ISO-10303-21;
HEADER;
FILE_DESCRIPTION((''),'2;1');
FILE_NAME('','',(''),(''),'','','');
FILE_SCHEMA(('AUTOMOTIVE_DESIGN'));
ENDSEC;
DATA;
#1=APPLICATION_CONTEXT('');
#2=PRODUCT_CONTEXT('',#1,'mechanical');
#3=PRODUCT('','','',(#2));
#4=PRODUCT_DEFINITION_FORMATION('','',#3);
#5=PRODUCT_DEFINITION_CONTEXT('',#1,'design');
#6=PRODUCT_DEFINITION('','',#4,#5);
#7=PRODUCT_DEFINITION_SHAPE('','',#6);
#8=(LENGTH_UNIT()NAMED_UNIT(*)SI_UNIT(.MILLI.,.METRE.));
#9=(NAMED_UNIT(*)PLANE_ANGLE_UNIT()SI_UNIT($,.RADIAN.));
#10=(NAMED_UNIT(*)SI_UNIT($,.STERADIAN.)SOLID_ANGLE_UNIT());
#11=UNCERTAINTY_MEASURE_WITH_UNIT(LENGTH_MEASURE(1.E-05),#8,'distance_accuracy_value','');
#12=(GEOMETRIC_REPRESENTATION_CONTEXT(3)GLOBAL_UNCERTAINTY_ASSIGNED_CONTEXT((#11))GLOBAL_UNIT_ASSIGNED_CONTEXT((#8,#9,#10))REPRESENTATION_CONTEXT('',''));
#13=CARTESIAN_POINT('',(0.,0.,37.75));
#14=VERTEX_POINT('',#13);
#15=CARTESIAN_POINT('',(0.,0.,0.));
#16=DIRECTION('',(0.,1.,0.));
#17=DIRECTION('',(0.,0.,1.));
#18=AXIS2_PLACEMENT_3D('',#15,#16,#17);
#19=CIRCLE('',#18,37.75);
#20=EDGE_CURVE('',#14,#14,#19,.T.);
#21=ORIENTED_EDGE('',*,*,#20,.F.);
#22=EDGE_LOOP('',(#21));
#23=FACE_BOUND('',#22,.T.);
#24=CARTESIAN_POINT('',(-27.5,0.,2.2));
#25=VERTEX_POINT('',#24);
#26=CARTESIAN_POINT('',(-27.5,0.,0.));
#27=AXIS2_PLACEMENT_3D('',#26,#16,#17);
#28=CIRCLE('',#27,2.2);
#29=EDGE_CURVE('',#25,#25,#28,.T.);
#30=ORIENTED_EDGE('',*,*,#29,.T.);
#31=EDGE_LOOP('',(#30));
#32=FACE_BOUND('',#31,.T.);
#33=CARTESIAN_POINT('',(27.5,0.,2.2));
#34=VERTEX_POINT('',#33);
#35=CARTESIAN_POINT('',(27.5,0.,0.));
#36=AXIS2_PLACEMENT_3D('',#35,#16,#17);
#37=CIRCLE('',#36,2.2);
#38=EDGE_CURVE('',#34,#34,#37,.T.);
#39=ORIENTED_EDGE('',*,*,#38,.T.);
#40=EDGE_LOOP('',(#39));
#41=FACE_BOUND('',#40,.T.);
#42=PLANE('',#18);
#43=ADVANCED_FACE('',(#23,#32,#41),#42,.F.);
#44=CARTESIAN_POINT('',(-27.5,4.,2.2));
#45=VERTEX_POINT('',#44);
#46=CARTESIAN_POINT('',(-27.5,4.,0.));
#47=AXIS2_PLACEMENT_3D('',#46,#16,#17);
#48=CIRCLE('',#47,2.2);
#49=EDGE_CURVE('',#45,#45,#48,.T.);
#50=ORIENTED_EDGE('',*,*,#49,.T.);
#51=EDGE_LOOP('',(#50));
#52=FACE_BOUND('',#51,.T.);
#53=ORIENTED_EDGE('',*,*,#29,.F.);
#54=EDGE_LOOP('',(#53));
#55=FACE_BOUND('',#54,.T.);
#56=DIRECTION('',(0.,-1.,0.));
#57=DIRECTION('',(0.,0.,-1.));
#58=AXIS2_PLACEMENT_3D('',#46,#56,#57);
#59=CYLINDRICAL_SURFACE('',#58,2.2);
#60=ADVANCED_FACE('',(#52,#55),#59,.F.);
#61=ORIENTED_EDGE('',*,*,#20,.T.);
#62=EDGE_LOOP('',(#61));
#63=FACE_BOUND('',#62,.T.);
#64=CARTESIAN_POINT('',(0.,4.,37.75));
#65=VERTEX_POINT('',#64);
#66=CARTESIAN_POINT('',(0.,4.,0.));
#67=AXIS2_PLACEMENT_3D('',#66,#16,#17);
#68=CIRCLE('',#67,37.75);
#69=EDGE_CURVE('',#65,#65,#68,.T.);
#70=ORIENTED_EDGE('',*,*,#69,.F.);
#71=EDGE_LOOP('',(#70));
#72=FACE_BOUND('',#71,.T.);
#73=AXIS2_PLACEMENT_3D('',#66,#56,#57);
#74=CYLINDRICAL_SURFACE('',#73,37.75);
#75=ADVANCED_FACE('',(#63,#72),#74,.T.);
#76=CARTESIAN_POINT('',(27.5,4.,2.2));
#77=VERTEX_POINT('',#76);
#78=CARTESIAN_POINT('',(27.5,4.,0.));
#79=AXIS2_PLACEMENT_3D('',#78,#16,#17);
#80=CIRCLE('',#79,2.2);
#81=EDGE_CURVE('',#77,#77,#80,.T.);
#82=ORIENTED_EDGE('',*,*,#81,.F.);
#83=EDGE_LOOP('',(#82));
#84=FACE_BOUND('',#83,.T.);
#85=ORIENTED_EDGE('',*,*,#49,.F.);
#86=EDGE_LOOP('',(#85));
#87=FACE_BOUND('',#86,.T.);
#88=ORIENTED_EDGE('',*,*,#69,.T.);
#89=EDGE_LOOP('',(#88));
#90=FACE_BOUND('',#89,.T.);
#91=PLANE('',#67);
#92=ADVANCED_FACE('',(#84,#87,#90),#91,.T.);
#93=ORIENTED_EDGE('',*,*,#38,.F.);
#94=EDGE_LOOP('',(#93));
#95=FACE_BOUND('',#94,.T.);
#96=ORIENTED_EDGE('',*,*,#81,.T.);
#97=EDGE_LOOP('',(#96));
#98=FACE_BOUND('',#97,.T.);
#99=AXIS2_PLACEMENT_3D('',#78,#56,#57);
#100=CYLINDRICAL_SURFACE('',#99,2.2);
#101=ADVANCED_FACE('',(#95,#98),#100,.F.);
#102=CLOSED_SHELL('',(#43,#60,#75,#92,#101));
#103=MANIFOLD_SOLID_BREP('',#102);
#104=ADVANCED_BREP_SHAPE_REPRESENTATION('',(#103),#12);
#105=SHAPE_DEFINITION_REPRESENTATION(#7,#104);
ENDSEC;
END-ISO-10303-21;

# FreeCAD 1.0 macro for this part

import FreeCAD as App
import Part
import Sketcher
from FreeCAD import Vector
Q = App.Units.Quantity

doc = App.newDocument("Part")
body = doc.addObject("PartDesign::Body", "Body")

# Sketch on XZ plane
sketch1 = body.newObject("Sketcher::SketchObject", "Sketch")
sketch1.AttachmentSupport = (doc.getObject("XZ_Plane"), [""])
sketch1.MapMode = "FlatFace"
sketch1.addGeometry([
    Part.Circle(Vector(0, 0, 0), Vector(0, 0, 1), 37.8),
    Part.Circle(Vector(-27.5, 0, 0), Vector(0, 0, 1), 2.2),
    Part.Circle(Vector(27.5, 0, 0), Vector(0, 0, 1), 2.2),
], False)
sketch1.addConstraint([
    Sketcher.Constraint("Coincident", 0, 3, -1, 1),
    Sketcher.Constraint("Equal", 1, 2),
    Sketcher.Constraint("Symmetric", 1, 3, 2, 3, -1, 1),
    Sketcher.Constraint("PointOnObject", 1, 3, -1),
    Sketcher.Constraint("Diameter", 0, Q("75.5 mm")),
    Sketcher.Constraint("Diameter", 1, Q("4.4 mm")),
    Sketcher.Constraint("DistanceX", 1, 3, 2, 3, Q("55 mm")),
])
pad1 = body.newObject("PartDesign::Pad", "Pad")
pad1.Profile = sketch1
pad1.Length = 4
pad1.Reversed = True

doc.recompute()
